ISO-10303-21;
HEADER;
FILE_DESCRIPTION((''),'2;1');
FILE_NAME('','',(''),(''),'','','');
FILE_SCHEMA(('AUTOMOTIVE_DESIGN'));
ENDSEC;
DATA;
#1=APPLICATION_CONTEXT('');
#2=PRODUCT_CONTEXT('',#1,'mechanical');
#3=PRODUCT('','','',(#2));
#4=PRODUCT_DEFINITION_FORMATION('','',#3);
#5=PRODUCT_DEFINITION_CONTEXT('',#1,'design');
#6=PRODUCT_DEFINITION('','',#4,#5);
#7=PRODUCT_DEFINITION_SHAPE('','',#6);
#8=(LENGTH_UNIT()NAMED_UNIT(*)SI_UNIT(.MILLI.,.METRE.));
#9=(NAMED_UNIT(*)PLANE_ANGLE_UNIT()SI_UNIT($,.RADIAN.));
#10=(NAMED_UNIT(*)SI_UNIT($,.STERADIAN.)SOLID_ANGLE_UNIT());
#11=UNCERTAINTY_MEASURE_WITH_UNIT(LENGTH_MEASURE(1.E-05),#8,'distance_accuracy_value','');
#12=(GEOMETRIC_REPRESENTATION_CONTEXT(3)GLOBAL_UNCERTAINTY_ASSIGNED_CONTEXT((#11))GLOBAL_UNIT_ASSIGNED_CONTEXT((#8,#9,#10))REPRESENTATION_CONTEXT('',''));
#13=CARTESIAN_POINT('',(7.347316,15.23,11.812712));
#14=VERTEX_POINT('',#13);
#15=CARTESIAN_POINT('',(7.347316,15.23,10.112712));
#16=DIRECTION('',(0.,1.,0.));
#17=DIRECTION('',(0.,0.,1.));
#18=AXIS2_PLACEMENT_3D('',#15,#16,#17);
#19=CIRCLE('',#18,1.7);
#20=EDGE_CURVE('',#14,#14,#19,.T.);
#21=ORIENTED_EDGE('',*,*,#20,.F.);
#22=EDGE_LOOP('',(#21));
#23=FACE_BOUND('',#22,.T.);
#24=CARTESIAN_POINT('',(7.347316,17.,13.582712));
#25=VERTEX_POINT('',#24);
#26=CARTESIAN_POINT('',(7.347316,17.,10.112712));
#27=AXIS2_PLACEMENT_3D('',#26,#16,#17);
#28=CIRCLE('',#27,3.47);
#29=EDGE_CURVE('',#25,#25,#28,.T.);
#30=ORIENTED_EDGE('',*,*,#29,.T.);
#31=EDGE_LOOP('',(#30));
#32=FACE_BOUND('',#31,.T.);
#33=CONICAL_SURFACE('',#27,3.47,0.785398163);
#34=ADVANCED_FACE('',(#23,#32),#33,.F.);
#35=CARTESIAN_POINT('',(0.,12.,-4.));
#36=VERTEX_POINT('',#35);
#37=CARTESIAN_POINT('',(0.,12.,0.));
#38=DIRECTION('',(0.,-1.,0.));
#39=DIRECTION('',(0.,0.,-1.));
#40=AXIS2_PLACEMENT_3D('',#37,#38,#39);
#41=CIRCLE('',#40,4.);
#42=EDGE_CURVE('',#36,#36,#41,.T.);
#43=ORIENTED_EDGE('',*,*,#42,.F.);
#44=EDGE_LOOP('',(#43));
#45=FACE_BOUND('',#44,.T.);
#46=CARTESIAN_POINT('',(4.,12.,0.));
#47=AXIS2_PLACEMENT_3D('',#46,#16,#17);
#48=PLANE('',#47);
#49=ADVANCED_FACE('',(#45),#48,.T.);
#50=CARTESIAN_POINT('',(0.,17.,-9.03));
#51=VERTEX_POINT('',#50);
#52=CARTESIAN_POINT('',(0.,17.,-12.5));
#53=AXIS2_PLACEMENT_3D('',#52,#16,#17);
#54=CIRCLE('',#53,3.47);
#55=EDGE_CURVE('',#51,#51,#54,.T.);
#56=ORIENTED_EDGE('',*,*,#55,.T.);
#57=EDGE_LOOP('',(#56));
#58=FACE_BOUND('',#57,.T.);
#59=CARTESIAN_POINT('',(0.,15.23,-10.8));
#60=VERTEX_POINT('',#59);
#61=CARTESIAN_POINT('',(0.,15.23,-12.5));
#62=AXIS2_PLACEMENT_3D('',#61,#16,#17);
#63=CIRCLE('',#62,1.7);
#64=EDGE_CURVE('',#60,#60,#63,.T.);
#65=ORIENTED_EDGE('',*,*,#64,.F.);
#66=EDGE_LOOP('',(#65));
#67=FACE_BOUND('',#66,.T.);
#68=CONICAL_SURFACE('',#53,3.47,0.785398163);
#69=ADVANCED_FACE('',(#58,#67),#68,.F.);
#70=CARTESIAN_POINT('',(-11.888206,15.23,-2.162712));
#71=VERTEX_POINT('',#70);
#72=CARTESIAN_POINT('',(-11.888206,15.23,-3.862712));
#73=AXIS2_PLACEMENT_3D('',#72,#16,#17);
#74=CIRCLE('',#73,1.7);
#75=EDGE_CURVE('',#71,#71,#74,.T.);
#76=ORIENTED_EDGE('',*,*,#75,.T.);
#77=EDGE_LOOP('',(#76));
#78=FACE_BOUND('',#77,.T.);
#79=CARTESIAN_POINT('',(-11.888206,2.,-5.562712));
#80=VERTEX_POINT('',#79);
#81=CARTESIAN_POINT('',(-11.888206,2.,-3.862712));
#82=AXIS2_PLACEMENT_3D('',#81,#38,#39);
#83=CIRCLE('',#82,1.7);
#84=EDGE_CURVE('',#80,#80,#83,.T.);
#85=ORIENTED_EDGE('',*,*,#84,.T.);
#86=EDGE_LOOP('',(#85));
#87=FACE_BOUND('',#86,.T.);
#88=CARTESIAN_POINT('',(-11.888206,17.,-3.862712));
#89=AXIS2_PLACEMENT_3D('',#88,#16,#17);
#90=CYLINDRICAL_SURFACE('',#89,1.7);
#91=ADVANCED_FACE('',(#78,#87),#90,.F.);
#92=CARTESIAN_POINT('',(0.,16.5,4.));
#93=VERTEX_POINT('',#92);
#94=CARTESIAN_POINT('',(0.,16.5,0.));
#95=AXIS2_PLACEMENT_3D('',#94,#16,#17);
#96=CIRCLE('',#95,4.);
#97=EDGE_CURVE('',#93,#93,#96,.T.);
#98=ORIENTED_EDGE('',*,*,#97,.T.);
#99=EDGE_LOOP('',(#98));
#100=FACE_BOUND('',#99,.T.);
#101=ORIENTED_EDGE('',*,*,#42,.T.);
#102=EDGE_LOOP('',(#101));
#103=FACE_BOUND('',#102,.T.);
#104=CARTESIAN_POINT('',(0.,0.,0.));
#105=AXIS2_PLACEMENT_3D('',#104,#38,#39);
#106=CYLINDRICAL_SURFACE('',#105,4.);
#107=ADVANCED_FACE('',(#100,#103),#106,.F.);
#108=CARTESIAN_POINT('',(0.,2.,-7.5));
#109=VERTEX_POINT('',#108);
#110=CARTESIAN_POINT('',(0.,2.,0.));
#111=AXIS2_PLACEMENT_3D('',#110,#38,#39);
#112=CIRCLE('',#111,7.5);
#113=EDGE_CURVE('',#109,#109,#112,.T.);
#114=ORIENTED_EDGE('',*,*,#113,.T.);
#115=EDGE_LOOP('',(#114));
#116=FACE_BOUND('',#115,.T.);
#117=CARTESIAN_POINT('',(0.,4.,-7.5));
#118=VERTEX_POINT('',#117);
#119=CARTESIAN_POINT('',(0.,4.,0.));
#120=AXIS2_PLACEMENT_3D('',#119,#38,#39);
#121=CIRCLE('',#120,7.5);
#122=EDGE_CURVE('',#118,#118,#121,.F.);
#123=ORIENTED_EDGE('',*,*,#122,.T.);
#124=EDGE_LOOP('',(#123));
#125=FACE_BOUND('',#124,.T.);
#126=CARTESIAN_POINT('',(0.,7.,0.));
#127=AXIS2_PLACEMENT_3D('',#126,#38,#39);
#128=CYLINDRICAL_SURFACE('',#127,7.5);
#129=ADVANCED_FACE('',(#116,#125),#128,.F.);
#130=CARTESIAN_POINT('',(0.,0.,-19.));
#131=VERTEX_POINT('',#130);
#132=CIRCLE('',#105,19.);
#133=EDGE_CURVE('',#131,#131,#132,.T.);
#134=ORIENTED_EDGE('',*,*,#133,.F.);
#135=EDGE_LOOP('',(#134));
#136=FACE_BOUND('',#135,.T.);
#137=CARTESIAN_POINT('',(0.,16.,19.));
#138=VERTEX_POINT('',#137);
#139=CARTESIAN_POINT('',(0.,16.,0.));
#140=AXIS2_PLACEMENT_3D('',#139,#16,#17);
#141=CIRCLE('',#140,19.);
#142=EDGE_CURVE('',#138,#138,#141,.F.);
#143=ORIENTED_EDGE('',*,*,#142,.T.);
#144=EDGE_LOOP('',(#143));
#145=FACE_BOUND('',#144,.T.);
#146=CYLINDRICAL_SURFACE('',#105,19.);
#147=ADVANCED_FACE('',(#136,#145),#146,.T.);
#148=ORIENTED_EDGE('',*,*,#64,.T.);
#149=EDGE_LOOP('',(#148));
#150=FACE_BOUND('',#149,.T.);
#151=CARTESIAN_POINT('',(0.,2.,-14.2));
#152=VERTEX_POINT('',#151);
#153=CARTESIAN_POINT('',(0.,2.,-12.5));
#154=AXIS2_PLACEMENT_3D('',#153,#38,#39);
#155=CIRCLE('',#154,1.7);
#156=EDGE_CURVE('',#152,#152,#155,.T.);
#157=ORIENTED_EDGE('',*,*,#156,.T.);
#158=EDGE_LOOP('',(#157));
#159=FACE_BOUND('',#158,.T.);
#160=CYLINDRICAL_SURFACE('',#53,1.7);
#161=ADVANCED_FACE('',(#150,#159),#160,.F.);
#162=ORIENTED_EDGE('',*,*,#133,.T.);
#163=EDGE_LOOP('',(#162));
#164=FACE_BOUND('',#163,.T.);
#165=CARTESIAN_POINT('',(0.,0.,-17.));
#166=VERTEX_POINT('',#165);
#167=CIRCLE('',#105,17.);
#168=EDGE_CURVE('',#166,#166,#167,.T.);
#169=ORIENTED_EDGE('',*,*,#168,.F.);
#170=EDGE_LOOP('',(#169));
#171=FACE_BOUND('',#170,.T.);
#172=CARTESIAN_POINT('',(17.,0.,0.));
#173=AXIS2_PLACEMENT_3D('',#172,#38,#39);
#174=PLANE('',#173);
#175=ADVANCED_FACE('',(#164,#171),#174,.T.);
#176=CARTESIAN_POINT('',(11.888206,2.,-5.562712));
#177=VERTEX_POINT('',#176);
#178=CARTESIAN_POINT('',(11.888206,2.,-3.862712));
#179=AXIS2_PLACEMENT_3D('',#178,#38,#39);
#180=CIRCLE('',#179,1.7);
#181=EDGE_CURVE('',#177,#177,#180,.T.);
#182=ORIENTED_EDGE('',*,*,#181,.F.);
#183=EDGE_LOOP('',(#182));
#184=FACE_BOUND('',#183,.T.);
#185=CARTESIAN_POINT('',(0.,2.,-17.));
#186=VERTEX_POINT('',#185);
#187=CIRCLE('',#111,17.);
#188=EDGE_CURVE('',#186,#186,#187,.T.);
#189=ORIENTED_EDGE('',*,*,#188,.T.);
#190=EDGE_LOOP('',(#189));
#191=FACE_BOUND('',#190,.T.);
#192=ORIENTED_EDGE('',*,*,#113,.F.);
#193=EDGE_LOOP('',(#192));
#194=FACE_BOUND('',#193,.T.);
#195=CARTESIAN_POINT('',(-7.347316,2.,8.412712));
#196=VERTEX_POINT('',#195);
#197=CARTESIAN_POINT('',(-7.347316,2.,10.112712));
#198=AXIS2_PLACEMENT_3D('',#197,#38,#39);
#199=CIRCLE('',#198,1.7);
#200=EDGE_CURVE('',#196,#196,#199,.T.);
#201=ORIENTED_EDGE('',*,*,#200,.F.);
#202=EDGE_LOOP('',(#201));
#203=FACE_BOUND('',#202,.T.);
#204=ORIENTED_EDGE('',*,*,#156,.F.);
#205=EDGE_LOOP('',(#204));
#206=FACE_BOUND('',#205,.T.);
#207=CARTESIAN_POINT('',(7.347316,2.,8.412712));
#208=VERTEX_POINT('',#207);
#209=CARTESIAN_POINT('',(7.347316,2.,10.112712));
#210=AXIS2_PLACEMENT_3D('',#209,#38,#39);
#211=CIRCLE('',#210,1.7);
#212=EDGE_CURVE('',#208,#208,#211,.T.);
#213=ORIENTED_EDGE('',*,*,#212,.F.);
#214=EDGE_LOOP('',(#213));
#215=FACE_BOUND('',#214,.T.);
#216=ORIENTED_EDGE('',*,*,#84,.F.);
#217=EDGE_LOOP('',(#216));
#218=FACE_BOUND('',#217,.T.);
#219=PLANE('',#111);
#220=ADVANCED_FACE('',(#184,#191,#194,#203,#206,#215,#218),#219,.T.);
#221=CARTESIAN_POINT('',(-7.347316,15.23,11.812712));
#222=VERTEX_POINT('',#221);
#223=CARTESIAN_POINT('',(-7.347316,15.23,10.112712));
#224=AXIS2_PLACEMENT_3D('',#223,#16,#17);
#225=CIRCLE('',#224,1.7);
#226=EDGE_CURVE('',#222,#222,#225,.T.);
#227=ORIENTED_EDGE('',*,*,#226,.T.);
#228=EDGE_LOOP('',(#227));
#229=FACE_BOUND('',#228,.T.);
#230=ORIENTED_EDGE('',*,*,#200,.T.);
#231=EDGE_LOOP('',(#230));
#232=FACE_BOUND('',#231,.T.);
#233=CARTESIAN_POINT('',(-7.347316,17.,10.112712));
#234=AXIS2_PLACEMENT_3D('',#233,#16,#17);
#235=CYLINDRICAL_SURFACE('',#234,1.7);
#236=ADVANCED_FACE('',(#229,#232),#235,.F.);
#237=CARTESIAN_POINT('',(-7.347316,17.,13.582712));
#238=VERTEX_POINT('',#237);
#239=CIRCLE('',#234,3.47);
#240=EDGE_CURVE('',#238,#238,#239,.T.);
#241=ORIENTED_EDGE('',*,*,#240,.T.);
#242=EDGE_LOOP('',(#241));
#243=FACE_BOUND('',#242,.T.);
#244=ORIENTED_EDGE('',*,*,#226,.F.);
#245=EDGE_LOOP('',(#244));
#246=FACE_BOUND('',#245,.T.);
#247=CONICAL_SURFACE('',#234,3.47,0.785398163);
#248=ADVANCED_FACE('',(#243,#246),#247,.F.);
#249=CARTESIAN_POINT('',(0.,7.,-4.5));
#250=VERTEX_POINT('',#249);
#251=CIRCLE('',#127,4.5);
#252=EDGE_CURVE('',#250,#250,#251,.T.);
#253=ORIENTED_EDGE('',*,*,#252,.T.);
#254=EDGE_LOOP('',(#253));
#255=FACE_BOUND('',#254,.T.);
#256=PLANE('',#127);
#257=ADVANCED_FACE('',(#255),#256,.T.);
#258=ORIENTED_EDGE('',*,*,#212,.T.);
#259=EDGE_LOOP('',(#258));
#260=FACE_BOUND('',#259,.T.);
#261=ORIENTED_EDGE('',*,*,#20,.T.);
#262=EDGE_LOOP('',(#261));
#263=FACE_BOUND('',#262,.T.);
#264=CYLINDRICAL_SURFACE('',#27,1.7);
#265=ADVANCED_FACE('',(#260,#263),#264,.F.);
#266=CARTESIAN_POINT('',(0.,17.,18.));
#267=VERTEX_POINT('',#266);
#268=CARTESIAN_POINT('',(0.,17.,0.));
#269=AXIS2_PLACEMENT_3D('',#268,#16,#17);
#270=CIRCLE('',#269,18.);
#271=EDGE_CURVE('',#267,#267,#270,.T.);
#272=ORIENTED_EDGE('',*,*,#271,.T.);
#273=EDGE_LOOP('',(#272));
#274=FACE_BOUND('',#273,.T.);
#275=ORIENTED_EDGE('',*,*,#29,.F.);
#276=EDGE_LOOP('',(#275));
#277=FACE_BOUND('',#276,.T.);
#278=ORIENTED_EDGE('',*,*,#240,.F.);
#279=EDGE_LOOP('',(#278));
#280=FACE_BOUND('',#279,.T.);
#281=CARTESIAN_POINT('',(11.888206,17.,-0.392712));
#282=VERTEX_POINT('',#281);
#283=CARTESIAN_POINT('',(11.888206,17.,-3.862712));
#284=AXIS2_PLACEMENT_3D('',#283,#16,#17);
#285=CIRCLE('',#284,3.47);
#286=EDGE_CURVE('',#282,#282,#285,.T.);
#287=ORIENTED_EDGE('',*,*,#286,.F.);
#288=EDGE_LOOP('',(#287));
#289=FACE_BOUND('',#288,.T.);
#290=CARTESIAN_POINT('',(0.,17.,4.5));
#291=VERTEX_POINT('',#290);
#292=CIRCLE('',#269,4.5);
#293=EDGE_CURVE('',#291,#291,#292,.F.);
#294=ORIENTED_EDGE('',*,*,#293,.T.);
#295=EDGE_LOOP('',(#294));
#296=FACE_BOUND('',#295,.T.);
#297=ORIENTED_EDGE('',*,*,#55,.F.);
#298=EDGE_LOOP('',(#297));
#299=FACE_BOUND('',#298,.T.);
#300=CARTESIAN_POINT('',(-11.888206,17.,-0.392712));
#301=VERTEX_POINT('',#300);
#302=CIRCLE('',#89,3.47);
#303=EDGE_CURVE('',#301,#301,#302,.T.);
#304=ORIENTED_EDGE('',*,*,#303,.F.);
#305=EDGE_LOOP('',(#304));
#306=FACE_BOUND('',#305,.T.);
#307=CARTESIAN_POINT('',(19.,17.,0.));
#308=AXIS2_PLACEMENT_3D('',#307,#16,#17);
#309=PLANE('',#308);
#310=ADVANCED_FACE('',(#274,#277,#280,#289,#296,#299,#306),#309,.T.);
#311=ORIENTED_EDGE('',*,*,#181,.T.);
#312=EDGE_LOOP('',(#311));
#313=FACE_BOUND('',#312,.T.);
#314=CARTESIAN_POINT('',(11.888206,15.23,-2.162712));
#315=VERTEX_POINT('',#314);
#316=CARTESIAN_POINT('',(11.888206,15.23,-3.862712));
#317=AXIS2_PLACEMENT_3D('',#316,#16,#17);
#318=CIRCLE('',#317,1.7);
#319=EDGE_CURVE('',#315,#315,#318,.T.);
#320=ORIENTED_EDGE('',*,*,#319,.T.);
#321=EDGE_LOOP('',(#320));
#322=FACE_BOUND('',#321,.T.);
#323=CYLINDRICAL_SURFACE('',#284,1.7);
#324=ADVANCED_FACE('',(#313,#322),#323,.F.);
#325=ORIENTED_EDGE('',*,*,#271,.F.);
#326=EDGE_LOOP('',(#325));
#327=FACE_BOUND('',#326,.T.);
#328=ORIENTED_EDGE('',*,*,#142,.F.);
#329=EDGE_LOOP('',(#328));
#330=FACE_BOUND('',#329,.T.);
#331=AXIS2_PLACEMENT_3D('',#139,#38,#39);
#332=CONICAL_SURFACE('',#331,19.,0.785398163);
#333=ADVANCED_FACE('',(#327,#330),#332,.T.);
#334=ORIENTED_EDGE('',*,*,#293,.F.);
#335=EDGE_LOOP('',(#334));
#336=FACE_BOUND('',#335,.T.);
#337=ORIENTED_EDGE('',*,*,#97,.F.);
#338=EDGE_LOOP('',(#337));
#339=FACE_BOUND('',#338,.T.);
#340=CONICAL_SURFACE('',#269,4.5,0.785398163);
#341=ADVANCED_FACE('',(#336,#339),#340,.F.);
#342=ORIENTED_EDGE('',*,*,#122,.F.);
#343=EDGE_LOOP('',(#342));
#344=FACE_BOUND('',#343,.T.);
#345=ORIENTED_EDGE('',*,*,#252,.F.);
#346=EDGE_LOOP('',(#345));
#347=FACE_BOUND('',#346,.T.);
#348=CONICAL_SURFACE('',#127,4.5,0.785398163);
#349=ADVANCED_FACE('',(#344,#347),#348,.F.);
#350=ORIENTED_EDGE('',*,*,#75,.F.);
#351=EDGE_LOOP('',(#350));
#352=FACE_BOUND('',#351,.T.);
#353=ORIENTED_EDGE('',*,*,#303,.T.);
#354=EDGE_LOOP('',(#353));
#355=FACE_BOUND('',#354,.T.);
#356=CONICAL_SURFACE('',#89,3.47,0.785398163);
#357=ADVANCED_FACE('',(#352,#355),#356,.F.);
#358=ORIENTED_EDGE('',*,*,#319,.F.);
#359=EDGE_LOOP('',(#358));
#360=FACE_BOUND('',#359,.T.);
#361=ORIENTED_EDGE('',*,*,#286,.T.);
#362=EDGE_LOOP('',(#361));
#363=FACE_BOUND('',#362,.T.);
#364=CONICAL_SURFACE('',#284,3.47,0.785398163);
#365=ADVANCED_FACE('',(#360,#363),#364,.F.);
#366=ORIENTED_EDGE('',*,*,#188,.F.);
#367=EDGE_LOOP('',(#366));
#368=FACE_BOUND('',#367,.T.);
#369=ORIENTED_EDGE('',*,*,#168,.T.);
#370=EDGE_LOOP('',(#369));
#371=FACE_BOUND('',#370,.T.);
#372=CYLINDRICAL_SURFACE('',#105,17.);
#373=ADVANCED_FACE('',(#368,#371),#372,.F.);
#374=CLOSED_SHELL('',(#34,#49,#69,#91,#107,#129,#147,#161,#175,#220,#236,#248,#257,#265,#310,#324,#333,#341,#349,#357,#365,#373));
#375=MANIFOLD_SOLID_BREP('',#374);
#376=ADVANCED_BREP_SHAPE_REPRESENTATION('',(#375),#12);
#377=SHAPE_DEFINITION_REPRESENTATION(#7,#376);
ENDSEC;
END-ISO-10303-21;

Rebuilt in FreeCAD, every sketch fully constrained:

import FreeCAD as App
import Part
import Sketcher


def edges_at(feature, points):
    """Names of the edges that pass closest to the given points."""
    edges = feature.Shape.Edges
    near = lambda p: min(range(len(edges)), key=lambda i: edges[i].distToShape(Part.Vertex(*p))[0])
    return sorted({f"Edge{near(p) + 1}" for p in points})

doc = App.newDocument("Part")
body = doc.addObject("PartDesign::Body", "Body")

sketch1 = body.newObject("Sketcher::SketchObject", "Sketch")
sketch1.AttachmentSupport = (doc.getObject("XY_Plane"), [""])
sketch1.MapMode = "FlatFace"
sketch1.addGeometry([
    Part.LineSegment(App.Vector(17, 0, 0), App.Vector(19, 0, 0)),
    Part.LineSegment(App.Vector(19, 0, 0), App.Vector(19, 17, 0)),
    Part.LineSegment(App.Vector(19, 17, 0), App.Vector(4, 17, 0)),
    Part.LineSegment(App.Vector(4, 17, 0), App.Vector(4, 12, 0)),
    Part.LineSegment(App.Vector(4, 12, 0), App.Vector(0, 12, 0)),
    Part.LineSegment(App.Vector(0, 12, 0), App.Vector(0, 2, 0)),
    Part.LineSegment(App.Vector(0, 2, 0), App.Vector(17, 2, 0)),
    Part.LineSegment(App.Vector(17, 2, 0), App.Vector(17, 0, 0)),
], False)
sketch1.addConstraint([
    Sketcher.Constraint("Coincident", 0, 2, 1, 1),
    Sketcher.Constraint("Coincident", 1, 2, 2, 1),
    Sketcher.Constraint("Coincident", 2, 2, 3, 1),
    Sketcher.Constraint("Coincident", 3, 2, 4, 1),
    Sketcher.Constraint("Coincident", 4, 2, 5, 1),
    Sketcher.Constraint("Coincident", 5, 2, 6, 1),
    Sketcher.Constraint("Coincident", 6, 2, 7, 1),
    Sketcher.Constraint("Coincident", 7, 2, 0, 1),
    Sketcher.Constraint("Horizontal", 0),
    Sketcher.Constraint("Vertical", 1),
    Sketcher.Constraint("Horizontal", 2),
    Sketcher.Constraint("Vertical", 3),
    Sketcher.Constraint("Horizontal", 4),
    Sketcher.Constraint("Vertical", 5),
    Sketcher.Constraint("Horizontal", 6),
    Sketcher.Constraint("Vertical", 7),
    Sketcher.Constraint("PointOnObject", 0, 2, -1),
    Sketcher.Constraint("PointOnObject", 4, 2, -2),
    Sketcher.Constraint("Equal", 6, 1),
    Sketcher.Constraint("Equal", 0, 7),
    Sketcher.Constraint("DistanceX", 0, 1, 0, 2, 2.0),
    Sketcher.Constraint("DistanceX", 2, 2, 2, 1, 15.0),
    Sketcher.Constraint("DistanceX", 4, 2, 4, 1, 4.0),
    Sketcher.Constraint("DistanceY", 3, 2, 3, 1, 5.0),
])
revolution = body.newObject("PartDesign::Revolution", "Revolution")
revolution.Profile = sketch1
revolution.ReferenceAxis = (sketch1, ["V_Axis"])
revolution.Angle = 360

sketch2 = body.newObject("Sketcher::SketchObject", "Sketch001")
sketch2.AttachmentSupport = (doc.getObject("XZ_Plane"), [""])
sketch2.MapMode = "FlatFace"
sketch2.AttachmentOffset = App.Placement(App.Vector(0, 0, -17), App.Rotation())
sketch2.addGeometry([
    Part.Circle(App.Vector(-11.9, -3.9, 0), App.Vector(0, 0, 1), 1.7),
    Part.Circle(App.Vector(0, -12.5, 0), App.Vector(0, 0, 1), 1.7),
    Part.Circle(App.Vector(11.9, -3.9, 0), App.Vector(0, 0, 1), 1.7),
    Part.Circle(App.Vector(7.3, 10.1, 0), App.Vector(0, 0, 1), 1.7),
    Part.Circle(App.Vector(-7.3, 10.1, 0), App.Vector(0, 0, 1), 1.7),
], False)
sketch2.addConstraint([
    Sketcher.Constraint("Equal", 0, 1),
    Sketcher.Constraint("Equal", 1, 2),
    Sketcher.Constraint("Equal", 2, 3),
    Sketcher.Constraint("Equal", 3, 4),
    Sketcher.Constraint("Symmetric", 0, 3, 2, 3, -2),
    Sketcher.Constraint("Symmetric", 3, 3, 4, 3, -2),
    Sketcher.Constraint("PointOnObject", 1, 3, -2),
    Sketcher.Constraint("Diameter", 0, 3.4),
    Sketcher.Constraint("DistanceY", 1, 3, -1, 1, 12.5),
    Sketcher.Constraint("DistanceX", 3, 3, 2, 3, 4.540891),
    Sketcher.Constraint("DistanceX", 4, 3, 3, 3, 14.694631),
    Sketcher.Constraint("DistanceY", 0, 3, -1, 1, 3.862712),
    Sketcher.Constraint("DistanceY", -1, 1, 3, 3, 10.112712),
])
doc.recompute()
hole = body.newObject("PartDesign::Hole", "Hole")
hole.Profile = sketch2
hole.ThreadType = "None"
hole.Diameter = 3.4
hole.DepthType = "ThroughAll"
hole.HoleCutType = "Countersink"
hole.HoleCutDiameter = 6.94
hole.HoleCutCountersinkAngle = 90
hole.Reversed = True

sketch3 = body.newObject("Sketcher::SketchObject", "Sketch002")
sketch3.AttachmentSupport = (doc.getObject("XZ_Plane"), [""])
sketch3.MapMode = "FlatFace"
sketch3.AttachmentOffset = App.Placement(App.Vector(0, 0, -2), App.Rotation())
sketch3.addGeometry(Part.Circle(App.Vector(0, 0, 0), App.Vector(0, 0, 1), 8), False)
sketch3.addConstraint([
    Sketcher.Constraint("Coincident", 0, 3, -1, 1),
    Sketcher.Constraint("Diameter", 0, 15.0),
])
pocket1 = body.newObject("PartDesign::Pocket", "Pocket")
pocket1.Profile = sketch3
pocket1.Length = 5
doc.recompute()

chamfer = body.newObject("PartDesign::Chamfer", "Chamfer")
chamfer.Base = (pocket1, edges_at(pocket1, [(0, 7, 7.5)]))
chamfer.Size = 3
doc.recompute()

chamfer2 = body.newObject("PartDesign::Chamfer", "Chamfer001")
chamfer2.Base = (chamfer, edges_at(chamfer, [(0, 17, 19)]))
chamfer2.Size = 1
doc.recompute()

chamfer3 = body.newObject("PartDesign::Chamfer", "Chamfer002")
chamfer3.Base = (chamfer2, edges_at(chamfer2, [(0, 17, 4)]))
chamfer3.Size = 0.5

doc.recompute()
